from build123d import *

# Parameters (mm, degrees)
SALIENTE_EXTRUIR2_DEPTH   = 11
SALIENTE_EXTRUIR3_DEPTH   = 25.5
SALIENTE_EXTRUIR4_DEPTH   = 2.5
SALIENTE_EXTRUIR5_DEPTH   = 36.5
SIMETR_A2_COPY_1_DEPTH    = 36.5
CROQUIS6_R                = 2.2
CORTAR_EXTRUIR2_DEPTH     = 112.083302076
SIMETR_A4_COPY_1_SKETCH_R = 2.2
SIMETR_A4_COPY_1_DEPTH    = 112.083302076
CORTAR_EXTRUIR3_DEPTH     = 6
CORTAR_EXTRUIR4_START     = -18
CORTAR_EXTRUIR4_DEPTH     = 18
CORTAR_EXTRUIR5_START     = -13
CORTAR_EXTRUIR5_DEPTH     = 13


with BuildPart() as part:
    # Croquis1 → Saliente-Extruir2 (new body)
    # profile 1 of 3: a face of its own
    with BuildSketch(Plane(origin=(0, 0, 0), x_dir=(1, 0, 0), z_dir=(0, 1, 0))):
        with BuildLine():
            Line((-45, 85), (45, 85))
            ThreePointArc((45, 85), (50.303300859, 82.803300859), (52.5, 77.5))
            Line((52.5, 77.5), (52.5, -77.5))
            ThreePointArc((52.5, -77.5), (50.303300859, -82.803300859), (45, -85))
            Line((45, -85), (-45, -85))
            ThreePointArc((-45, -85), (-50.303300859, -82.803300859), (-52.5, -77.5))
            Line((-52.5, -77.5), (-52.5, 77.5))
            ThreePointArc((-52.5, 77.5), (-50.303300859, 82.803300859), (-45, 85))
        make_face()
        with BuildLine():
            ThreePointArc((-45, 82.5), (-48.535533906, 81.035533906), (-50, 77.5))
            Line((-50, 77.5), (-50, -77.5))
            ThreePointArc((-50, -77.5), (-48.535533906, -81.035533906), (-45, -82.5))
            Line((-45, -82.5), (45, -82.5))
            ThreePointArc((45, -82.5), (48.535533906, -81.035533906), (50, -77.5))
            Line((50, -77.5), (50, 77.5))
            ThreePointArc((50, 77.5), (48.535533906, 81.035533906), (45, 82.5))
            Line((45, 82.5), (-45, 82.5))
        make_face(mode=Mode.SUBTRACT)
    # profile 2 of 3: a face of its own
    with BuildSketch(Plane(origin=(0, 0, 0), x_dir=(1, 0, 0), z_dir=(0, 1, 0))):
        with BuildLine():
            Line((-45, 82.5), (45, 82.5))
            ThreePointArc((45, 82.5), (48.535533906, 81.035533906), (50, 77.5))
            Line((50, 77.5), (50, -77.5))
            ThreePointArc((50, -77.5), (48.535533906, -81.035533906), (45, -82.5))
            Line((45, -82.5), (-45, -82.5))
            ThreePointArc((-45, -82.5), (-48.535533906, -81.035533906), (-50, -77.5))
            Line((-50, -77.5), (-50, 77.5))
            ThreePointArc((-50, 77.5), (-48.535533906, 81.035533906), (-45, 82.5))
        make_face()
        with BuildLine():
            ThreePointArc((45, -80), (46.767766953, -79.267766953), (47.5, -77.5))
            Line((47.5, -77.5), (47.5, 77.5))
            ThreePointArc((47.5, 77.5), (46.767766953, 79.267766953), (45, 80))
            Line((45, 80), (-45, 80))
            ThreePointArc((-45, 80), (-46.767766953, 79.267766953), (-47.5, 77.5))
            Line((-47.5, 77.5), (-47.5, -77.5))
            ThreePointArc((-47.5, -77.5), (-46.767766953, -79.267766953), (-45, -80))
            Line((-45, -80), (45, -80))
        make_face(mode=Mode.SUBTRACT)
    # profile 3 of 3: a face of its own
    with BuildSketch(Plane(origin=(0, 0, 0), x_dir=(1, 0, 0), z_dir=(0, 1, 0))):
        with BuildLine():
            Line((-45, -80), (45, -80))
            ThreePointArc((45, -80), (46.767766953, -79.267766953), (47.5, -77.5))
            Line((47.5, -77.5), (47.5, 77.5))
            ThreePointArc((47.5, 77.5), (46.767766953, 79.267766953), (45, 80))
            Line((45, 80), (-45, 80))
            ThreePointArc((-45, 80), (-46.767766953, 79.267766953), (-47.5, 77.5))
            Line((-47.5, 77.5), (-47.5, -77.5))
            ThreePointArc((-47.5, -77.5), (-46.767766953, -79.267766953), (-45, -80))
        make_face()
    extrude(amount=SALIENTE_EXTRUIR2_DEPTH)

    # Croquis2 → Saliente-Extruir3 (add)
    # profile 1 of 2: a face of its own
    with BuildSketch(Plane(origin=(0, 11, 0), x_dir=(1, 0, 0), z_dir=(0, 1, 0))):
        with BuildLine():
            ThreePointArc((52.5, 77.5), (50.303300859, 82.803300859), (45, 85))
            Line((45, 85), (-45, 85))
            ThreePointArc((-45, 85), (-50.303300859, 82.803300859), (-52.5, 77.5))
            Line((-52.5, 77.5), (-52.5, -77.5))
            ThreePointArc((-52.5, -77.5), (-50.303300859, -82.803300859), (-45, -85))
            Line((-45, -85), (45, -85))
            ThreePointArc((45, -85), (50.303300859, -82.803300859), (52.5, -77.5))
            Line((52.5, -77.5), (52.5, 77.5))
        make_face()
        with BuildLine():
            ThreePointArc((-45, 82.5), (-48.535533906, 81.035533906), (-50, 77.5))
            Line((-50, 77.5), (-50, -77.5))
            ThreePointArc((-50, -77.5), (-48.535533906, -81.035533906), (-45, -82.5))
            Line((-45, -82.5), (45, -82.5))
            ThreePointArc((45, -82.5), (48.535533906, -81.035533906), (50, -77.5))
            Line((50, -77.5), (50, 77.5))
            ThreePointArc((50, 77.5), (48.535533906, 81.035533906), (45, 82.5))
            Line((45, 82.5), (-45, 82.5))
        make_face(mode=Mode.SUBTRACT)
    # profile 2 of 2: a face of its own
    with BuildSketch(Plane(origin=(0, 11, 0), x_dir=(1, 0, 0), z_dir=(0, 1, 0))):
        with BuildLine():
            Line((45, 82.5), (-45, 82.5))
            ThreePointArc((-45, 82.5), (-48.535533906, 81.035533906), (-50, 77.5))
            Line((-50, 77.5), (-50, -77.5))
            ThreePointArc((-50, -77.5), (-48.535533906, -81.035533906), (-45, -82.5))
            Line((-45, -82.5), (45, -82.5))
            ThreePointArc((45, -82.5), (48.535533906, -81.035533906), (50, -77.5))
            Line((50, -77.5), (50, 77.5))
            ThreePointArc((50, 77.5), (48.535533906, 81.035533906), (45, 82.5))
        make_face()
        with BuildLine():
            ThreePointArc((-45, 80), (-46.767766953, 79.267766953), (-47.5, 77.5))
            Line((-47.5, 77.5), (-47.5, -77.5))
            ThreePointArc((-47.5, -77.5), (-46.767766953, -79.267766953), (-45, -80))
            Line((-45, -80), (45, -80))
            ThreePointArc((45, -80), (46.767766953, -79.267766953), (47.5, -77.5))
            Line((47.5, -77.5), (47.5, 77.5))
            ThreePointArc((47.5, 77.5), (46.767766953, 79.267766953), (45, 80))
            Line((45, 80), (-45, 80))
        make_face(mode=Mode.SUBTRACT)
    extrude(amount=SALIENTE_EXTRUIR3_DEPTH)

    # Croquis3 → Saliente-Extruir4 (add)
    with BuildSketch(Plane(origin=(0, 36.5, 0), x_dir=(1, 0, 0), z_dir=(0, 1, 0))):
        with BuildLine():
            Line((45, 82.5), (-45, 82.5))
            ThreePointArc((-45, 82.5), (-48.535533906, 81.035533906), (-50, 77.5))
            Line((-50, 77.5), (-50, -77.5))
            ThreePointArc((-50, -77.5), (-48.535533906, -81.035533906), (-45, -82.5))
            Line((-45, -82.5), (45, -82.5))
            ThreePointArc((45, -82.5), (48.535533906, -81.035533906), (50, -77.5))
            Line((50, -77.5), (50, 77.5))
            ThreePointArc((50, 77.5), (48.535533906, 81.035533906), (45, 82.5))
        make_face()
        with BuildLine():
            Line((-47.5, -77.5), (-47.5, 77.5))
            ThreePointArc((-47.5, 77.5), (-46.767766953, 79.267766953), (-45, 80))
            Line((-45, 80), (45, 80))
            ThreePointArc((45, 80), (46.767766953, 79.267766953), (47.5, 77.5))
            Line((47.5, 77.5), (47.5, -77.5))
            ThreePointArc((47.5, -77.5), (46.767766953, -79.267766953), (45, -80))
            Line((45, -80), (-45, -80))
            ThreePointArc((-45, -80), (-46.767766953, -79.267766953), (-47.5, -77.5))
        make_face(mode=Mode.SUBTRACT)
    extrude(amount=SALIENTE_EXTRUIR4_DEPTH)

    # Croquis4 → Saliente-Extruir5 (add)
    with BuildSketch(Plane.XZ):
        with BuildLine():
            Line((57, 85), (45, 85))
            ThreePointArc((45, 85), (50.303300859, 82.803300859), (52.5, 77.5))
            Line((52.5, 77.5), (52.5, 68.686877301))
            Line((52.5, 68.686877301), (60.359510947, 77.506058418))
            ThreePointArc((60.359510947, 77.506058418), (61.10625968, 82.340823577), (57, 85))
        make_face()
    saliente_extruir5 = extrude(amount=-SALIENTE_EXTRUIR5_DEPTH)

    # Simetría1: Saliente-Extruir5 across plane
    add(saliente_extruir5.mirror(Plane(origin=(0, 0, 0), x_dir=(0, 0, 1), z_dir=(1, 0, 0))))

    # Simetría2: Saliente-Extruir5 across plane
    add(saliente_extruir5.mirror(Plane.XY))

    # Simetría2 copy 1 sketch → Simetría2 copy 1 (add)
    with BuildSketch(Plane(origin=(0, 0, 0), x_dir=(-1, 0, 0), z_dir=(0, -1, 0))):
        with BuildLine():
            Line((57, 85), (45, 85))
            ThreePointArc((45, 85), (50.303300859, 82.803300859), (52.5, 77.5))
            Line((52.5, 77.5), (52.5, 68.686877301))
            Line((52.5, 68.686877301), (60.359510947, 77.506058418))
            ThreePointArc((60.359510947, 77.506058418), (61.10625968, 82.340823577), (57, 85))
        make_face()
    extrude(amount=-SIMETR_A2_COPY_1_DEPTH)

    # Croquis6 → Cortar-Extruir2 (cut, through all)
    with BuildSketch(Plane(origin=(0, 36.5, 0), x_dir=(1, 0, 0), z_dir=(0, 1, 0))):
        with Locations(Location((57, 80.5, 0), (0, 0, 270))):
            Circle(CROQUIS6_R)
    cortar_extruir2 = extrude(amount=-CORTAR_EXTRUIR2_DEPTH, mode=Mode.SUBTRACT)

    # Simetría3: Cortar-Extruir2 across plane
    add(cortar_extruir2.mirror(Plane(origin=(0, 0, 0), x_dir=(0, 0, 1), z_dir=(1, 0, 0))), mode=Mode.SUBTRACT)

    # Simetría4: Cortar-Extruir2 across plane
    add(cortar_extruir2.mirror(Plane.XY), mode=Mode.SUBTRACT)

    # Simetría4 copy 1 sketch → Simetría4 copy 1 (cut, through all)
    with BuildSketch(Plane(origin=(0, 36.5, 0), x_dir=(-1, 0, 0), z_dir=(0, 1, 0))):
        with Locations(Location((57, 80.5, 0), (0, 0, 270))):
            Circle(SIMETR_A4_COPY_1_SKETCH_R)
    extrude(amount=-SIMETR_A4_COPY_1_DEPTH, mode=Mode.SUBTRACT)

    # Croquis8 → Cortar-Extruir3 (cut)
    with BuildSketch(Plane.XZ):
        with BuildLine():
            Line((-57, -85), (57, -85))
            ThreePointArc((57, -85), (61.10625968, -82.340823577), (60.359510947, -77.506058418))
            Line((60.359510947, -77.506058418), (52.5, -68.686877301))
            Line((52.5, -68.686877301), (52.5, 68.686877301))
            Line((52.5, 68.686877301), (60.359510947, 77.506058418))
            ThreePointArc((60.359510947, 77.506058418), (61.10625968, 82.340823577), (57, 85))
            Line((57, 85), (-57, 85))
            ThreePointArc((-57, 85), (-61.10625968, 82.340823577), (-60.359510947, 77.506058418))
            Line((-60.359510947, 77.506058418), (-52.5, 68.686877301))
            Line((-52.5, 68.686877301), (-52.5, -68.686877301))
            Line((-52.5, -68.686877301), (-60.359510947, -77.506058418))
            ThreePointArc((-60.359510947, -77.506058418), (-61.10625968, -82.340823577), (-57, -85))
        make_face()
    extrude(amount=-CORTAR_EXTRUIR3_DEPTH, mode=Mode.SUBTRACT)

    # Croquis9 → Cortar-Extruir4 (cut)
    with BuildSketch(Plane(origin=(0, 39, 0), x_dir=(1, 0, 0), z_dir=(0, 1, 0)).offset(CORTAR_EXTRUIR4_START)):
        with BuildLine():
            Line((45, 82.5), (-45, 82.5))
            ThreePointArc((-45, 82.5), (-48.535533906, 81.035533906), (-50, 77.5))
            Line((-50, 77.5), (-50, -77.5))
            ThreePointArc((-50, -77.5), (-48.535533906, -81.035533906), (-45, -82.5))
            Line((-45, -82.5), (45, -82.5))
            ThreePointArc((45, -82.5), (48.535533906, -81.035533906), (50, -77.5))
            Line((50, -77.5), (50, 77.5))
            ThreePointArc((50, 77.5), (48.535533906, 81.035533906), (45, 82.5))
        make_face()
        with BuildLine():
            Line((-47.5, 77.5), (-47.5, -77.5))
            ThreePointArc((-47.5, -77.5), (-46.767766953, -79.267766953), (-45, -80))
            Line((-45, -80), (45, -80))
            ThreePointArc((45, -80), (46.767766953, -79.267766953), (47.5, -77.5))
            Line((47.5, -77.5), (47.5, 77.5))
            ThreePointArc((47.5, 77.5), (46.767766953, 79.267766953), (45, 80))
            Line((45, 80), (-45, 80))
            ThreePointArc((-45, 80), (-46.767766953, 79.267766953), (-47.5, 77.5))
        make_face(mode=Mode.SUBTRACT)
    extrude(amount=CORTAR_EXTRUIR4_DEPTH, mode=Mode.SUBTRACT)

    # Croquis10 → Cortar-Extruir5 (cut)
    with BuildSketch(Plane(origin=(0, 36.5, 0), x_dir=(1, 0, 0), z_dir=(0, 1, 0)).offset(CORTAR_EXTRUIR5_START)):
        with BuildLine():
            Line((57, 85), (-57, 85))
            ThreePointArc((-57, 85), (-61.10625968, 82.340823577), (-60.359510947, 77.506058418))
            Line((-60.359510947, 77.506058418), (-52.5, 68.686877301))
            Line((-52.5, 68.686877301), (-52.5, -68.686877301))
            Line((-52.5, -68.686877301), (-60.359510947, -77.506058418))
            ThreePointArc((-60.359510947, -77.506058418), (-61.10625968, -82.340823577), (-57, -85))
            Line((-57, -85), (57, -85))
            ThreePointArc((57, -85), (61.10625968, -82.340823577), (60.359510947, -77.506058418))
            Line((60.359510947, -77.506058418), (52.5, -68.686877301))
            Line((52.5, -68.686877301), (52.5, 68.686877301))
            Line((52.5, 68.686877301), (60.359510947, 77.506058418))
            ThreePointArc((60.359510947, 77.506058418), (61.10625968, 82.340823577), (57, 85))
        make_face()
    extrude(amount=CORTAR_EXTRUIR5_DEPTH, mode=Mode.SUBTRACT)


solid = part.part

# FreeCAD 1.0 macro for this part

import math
import FreeCAD as App
import Part
import Sketcher

V = App.Vector

doc = App.newDocument("Part")
params = doc.addObject("Spreadsheet::Sheet", "Params")
for row, (alias, value) in enumerate([
    ("sketch1_radius", "7.5 mm"),
    ("sketch1_width", "90 mm"),
    ("sketch1_height", "155 mm"),
    ("pad1_length", "11 mm"),
    ("sketch2_radius", "7.5 mm"),
    ("sketch2_radius2", "2.5 mm"),
    ("sketch2_width", "90 mm"),
    ("sketch2_height", "155 mm"),
    ("pad2_length", "25.5 mm"),
    ("sketch3_radius", "5 mm"),
    ("sketch3_radius2", "2.5 mm"),
    ("sketch3_width", "90 mm"),
    ("sketch3_height", "155 mm"),
    ("pad3_length", "2.5 mm"),
    ("sketch4_radius", "7.5 mm"),
    ("sketch4_radius2", "4.5 mm"),
    ("sketch4_width", "12 mm"),
    ("pad4_length", "36.5 mm"),
    ("sketch5_radius", "7.5 mm"),
    ("sketch5_radius2", "4.5 mm"),
    ("sketch5_width", "12 mm"),
    ("pad5_length", "36.5 mm"),
    ("sketch6_diameter", "4.4 mm"),
    ("sketch7_diameter", "4.4 mm"),
    ("sketch8_radius", "4.5 mm"),
    ("sketch8_width", "114 mm"),
    ("pocket3_length", "6 mm"),
    ("sketch9_radius", "5 mm"),
    ("sketch9_radius2", "2.5 mm"),
    ("sketch9_width", "90 mm"),
    ("sketch9_height", "155 mm"),
    ("pocket4_length", "18 mm"),
    ("sketch10_radius", "4.5 mm"),
    ("sketch10_width", "114 mm"),
    ("pocket5_length", "13 mm"),
], start=1):
    params.set(f"A{row}", alias)
    params.set(f"B{row}", "=" + value)
    params.setAlias(f"B{row}", alias)

body = doc.addObject("PartDesign::Body", "Body")

sketch1 = body.newObject("Sketcher::SketchObject", "Sketch")
sketch1.AttachmentSupport = (doc.getObject("XZ_Plane"), [""])
sketch1.MapMode = "FlatFace"
sketch1.addGeometry(Part.LineSegment(V(45, -85, 0), V(-45, -85, 0)), False)
sketch1.addGeometry(Part.ArcOfCircle(Part.Circle(V(-45, -78, 0), V(0, 0, 1), 8), math.radians(180), math.radians(270)), False)
sketch1.addGeometry(Part.LineSegment(V(-52, -78, 0), V(-52, 78, 0)), False)
sketch1.addGeometry(Part.ArcOfCircle(Part.Circle(V(-45, 78, 0), V(0, 0, 1), 8), math.radians(90), math.radians(180)), False)
sketch1.addGeometry(Part.LineSegment(V(-45, 85, 0), V(45, 85, 0)), False)
sketch1.addGeometry(Part.ArcOfCircle(Part.Circle(V(45, 78, 0), V(0, 0, 1), 8), math.radians(0), math.radians(90)), False)
sketch1.addGeometry(Part.LineSegment(V(52, 78, 0), V(52, -78, 0)), False)
sketch1.addGeometry(Part.ArcOfCircle(Part.Circle(V(45, -78, 0), V(0, 0, 1), 8), math.radians(-90), math.radians(0)), False)
sketch1.addConstraint(Sketcher.Constraint("Tangent", 0, 2, 1, 2))
sketch1.addConstraint(Sketcher.Constraint("Tangent", 1, 1, 2, 1))
sketch1.addConstraint(Sketcher.Constraint("Tangent", 2, 2, 3, 2))
sketch1.addConstraint(Sketcher.Constraint("Tangent", 3, 1, 4, 1))
sketch1.addConstraint(Sketcher.Constraint("Tangent", 4, 2, 5, 2))
sketch1.addConstraint(Sketcher.Constraint("Tangent", 5, 1, 6, 1))
sketch1.addConstraint(Sketcher.Constraint("Tangent", 6, 2, 7, 2))
sketch1.addConstraint(Sketcher.Constraint("Tangent", 7, 1, 0, 1))
sketch1.addConstraint(Sketcher.Constraint("Horizontal", 0))
sketch1.addConstraint(Sketcher.Constraint("Vertical", 2))
sketch1.addConstraint(Sketcher.Constraint("Horizontal", 4))
sketch1.addConstraint(Sketcher.Constraint("Vertical", 6))
sketch1.addConstraint(Sketcher.Constraint("Equal", 1, 3))
sketch1.addConstraint(Sketcher.Constraint("Equal", 3, 5))
sketch1.addConstraint(Sketcher.Constraint("Equal", 5, 7))
sketch1.addConstraint(Sketcher.Constraint("Symmetric", 1, 3, 5, 3, -1, 1))
sketch1.addConstraint(Sketcher.Constraint("Radius", 1, 7.5))
sketch1.addConstraint(Sketcher.Constraint("DistanceX", 0, 2, 0, 1, 90.0))
sketch1.addConstraint(Sketcher.Constraint("DistanceY", 2, 1, 2, 2, 155.0))
sketch1.setExpression("Constraints[16]", "Params.sketch1_radius")
sketch1.setExpression("Constraints[17]", "Params.sketch1_width")
sketch1.setExpression("Constraints[18]", "Params.sketch1_height")
pad1 = body.newObject("PartDesign::Pad", "Pad")
pad1.Profile = sketch1
pad1.setExpression("Length", "Params.pad1_length")
pad1.Reversed = True

sketch2 = body.newObject("Sketcher::SketchObject", "Sketch001")
sketch2.AttachmentSupport = (doc.getObject("XZ_Plane"), [""])
sketch2.MapMode = "FlatFace"
sketch2.AttachmentOffset = App.Placement(V(0, 0, -11), App.Rotation())
sketch2.addGeometry(Part.ArcOfCircle(Part.Circle(V(45, -77.5, 0), V(0, 0, 1), 7.5), math.radians(-90), math.radians(0)), False)
sketch2.addGeometry(Part.LineSegment(V(45, -85, 0), V(-45, -85, 0)), False)
sketch2.addGeometry(Part.ArcOfCircle(Part.Circle(V(-45, -77.5, 0), V(0, 0, 1), 7.5), math.radians(180), math.radians(270)), False)
sketch2.addGeometry(Part.LineSegment(V(-52.5, -77.5, 0), V(-52.5, 77.5, 0)), False)
sketch2.addGeometry(Part.ArcOfCircle(Part.Circle(V(-45, 77.5, 0), V(0, 0, 1), 7.5), math.radians(90), math.radians(180)), False)
sketch2.addGeometry(Part.LineSegment(V(-45, 85, 0), V(45, 85, 0)), False)
sketch2.addGeometry(Part.ArcOfCircle(Part.Circle(V(45, 77.5, 0), V(0, 0, 1), 7.5), math.radians(0), math.radians(90)), False)
sketch2.addGeometry(Part.LineSegment(V(52.5, 77.5, 0), V(52.5, -77.5, 0)), False)
sketch2.addGeometry(Part.ArcOfCircle(Part.Circle(V(-45, -77.5, 0), V(0, 0, 1), 2.5), math.radians(180), math.radians(270)), False)
sketch2.addGeometry(Part.LineSegment(V(-45, -80, 0), V(45, -80, 0)), False)
sketch2.addGeometry(Part.ArcOfCircle(Part.Circle(V(45, -77.5, 0), V(0, 0, 1), 2.5), math.radians(-90), math.radians(0)), False)
sketch2.addGeometry(Part.LineSegment(V(47.5, -77.5, 0), V(47.5, 77.5, 0)), False)
sketch2.addGeometry(Part.ArcOfCircle(Part.Circle(V(45, 77.5, 0), V(0, 0, 1), 2.5), math.radians(0), math.radians(90)), False)
sketch2.addGeometry(Part.LineSegment(V(45, 80, 0), V(-45, 80, 0)), False)
sketch2.addGeometry(Part.ArcOfCircle(Part.Circle(V(-45, 77.5, 0), V(0, 0, 1), 2.5), math.radians(90), math.radians(180)), False)
sketch2.addGeometry(Part.LineSegment(V(-47.5, 77.5, 0), V(-47.5, -77.5, 0)), False)
sketch2.addConstraint(Sketcher.Constraint("Tangent", 0, 1, 1, 1))
sketch2.addConstraint(Sketcher.Constraint("Tangent", 1, 2, 2, 2))
sketch2.addConstraint(Sketcher.Constraint("Tangent", 2, 1, 3, 1))
sketch2.addConstraint(Sketcher.Constraint("Tangent", 3, 2, 4, 2))
sketch2.addConstraint(Sketcher.Constraint("Tangent", 4, 1, 5, 1))
sketch2.addConstraint(Sketcher.Constraint("Tangent", 5, 2, 6, 2))
sketch2.addConstraint(Sketcher.Constraint("Tangent", 6, 1, 7, 1))
sketch2.addConstraint(Sketcher.Constraint("Tangent", 7, 2, 0, 2))
sketch2.addConstraint(Sketcher.Constraint("Tangent", 8, 2, 9, 1))
sketch2.addConstraint(Sketcher.Constraint("Tangent", 9, 2, 10, 1))
sketch2.addConstraint(Sketcher.Constraint("Tangent", 10, 2, 11, 1))
sketch2.addConstraint(Sketcher.Constraint("Tangent", 11, 2, 12, 1))
sketch2.addConstraint(Sketcher.Constraint("Tangent", 12, 2, 13, 1))
sketch2.addConstraint(Sketcher.Constraint("Tangent", 13, 2, 14, 1))
sketch2.addConstraint(Sketcher.Constraint("Tangent", 14, 2, 15, 1))
sketch2.addConstraint(Sketcher.Constraint("Tangent", 15, 2, 8, 1))
sketch2.addConstraint(Sketcher.Constraint("Horizontal", 1))
sketch2.addConstraint(Sketcher.Constraint("Vertical", 3))
sketch2.addConstraint(Sketcher.Constraint("Horizontal", 5))
sketch2.addConstraint(Sketcher.Constraint("Vertical", 7))
sketch2.addConstraint(Sketcher.Constraint("Horizontal", 9))
sketch2.addConstraint(Sketcher.Constraint("Vertical", 11))
sketch2.addConstraint(Sketcher.Constraint("Horizontal", 13))
sketch2.addConstraint(Sketcher.Constraint("Vertical", 15))
sketch2.addConstraint(Sketcher.Constraint("Coincident", 8, 3, 2, 3))
sketch2.addConstraint(Sketcher.Constraint("Coincident", 10, 3, 0, 3))
sketch2.addConstraint(Sketcher.Constraint("Coincident", 12, 3, 6, 3))
sketch2.addConstraint(Sketcher.Constraint("Equal", 0, 2))
sketch2.addConstraint(Sketcher.Constraint("Equal", 2, 4))
sketch2.addConstraint(Sketcher.Constraint("Equal", 4, 6))
sketch2.addConstraint(Sketcher.Constraint("Equal", 12, 14))
sketch2.addConstraint(Sketcher.Constraint("Symmetric", 0, 3, 4, 3, -1, 1))
sketch2.addConstraint(Sketcher.Constraint("Radius", 0, 7.5))
sketch2.addConstraint(Sketcher.Constraint("Radius", 8, 2.5))
sketch2.addConstraint(Sketcher.Constraint("DistanceX", 1, 2, 1, 1, 90.0))
sketch2.addConstraint(Sketcher.Constraint("DistanceY", 3, 1, 3, 2, 155.0))
sketch2.setExpression("Constraints[32]", "Params.sketch2_radius")
sketch2.setExpression("Constraints[33]", "Params.sketch2_radius2")
sketch2.setExpression("Constraints[34]", "Params.sketch2_width")
sketch2.setExpression("Constraints[35]", "Params.sketch2_height")
pad2 = body.newObject("PartDesign::Pad", "Pad001")
pad2.Profile = sketch2
pad2.setExpression("Length", "Params.pad2_length")
pad2.Reversed = True

sketch3 = body.newObject("Sketcher::SketchObject", "Sketch002")
sketch3.AttachmentSupport = (doc.getObject("XZ_Plane"), [""])
sketch3.MapMode = "FlatFace"
sketch3.AttachmentOffset = App.Placement(V(0, 0, -36.5), App.Rotation())
sketch3.addGeometry(Part.LineSegment(V(45, -82.5, 0), V(-45, -82.5, 0)), False)
sketch3.addGeometry(Part.ArcOfCircle(Part.Circle(V(-45, -77.5, 0), V(0, 0, 1), 5), math.radians(180), math.radians(270)), False)
sketch3.addGeometry(Part.LineSegment(V(-50, -77.5, 0), V(-50, 77.5, 0)), False)
sketch3.addGeometry(Part.ArcOfCircle(Part.Circle(V(-45, 77.5, 0), V(0, 0, 1), 5), math.radians(90), math.radians(180)), False)
sketch3.addGeometry(Part.LineSegment(V(-45, 82.5, 0), V(45, 82.5, 0)), False)
sketch3.addGeometry(Part.ArcOfCircle(Part.Circle(V(45, 77.5, 0), V(0, 0, 1), 5), math.radians(0), math.radians(90)), False)
sketch3.addGeometry(Part.LineSegment(V(50, 77.5, 0), V(50, -77.5, 0)), False)
sketch3.addGeometry(Part.ArcOfCircle(Part.Circle(V(45, -77.5, 0), V(0, 0, 1), 5), math.radians(-90), math.radians(0)), False)
sketch3.addGeometry(Part.ArcOfCircle(Part.Circle(V(-45, 77.5, 0), V(0, 0, 1), 2.5), math.radians(90), math.radians(180)), False)
sketch3.addGeometry(Part.LineSegment(V(-47.5, 77.5, 0), V(-47.5, -77.5, 0)), False)
sketch3.addGeometry(Part.ArcOfCircle(Part.Circle(V(-45, -77.5, 0), V(0, 0, 1), 2.5), math.radians(180), math.radians(270)), False)
sketch3.addGeometry(Part.LineSegment(V(-45, -80, 0), V(45, -80, 0)), False)
sketch3.addGeometry(Part.ArcOfCircle(Part.Circle(V(45, -77.5, 0), V(0, 0, 1), 2.5), math.radians(-90), math.radians(0)), False)
sketch3.addGeometry(Part.LineSegment(V(47.5, -77.5, 0), V(47.5, 77.5, 0)), False)
sketch3.addGeometry(Part.ArcOfCircle(Part.Circle(V(45, 77.5, 0), V(0, 0, 1), 2.5), math.radians(0), math.radians(90)), False)
sketch3.addGeometry(Part.LineSegment(V(45, 80, 0), V(-45, 80, 0)), False)
sketch3.addConstraint(Sketcher.Constraint("Tangent", 0, 2, 1, 2))
sketch3.addConstraint(Sketcher.Constraint("Tangent", 1, 1, 2, 1))
sketch3.addConstraint(Sketcher.Constraint("Tangent", 2, 2, 3, 2))
sketch3.addConstraint(Sketcher.Constraint("Tangent", 3, 1, 4, 1))
sketch3.addConstraint(Sketcher.Constraint("Tangent", 4, 2, 5, 2))
sketch3.addConstraint(Sketcher.Constraint("Tangent", 5, 1, 6, 1))
sketch3.addConstraint(Sketcher.Constraint("Tangent", 6, 2, 7, 2))
sketch3.addConstraint(Sketcher.Constraint("Tangent", 7, 1, 0, 1))
sketch3.addConstraint(Sketcher.Constraint("Tangent", 8, 2, 9, 1))
sketch3.addConstraint(Sketcher.Constraint("Tangent", 9, 2, 10, 1))
sketch3.addConstraint(Sketcher.Constraint("Tangent", 10, 2, 11, 1))
sketch3.addConstraint(Sketcher.Constraint("Tangent", 11, 2, 12, 1))
sketch3.addConstraint(Sketcher.Constraint("Tangent", 12, 2, 13, 1))
sketch3.addConstraint(Sketcher.Constraint("Tangent", 13, 2, 14, 1))
sketch3.addConstraint(Sketcher.Constraint("Tangent", 14, 2, 15, 1))
sketch3.addConstraint(Sketcher.Constraint("Tangent", 15, 2, 8, 1))
sketch3.addConstraint(Sketcher.Constraint("Horizontal", 0))
sketch3.addConstraint(Sketcher.Constraint("Vertical", 2))
sketch3.addConstraint(Sketcher.Constraint("Horizontal", 4))
sketch3.addConstraint(Sketcher.Constraint("Vertical", 6))
sketch3.addConstraint(Sketcher.Constraint("Vertical", 9))
sketch3.addConstraint(Sketcher.Constraint("Horizontal", 11))
sketch3.addConstraint(Sketcher.Constraint("Vertical", 13))
sketch3.addConstraint(Sketcher.Constraint("Horizontal", 15))
sketch3.addConstraint(Sketcher.Constraint("Coincident", 8, 3, 3, 3))
sketch3.addConstraint(Sketcher.Constraint("Coincident", 10, 3, 1, 3))
sketch3.addConstraint(Sketcher.Constraint("Coincident", 12, 3, 7, 3))
sketch3.addConstraint(Sketcher.Constraint("Equal", 1, 3))
sketch3.addConstraint(Sketcher.Constraint("Equal", 3, 5))
sketch3.addConstraint(Sketcher.Constraint("Equal", 5, 7))
sketch3.addConstraint(Sketcher.Constraint("Equal", 12, 14))
sketch3.addConstraint(Sketcher.Constraint("Symmetric", 1, 3, 5, 3, -1, 1))
sketch3.addConstraint(Sketcher.Constraint("Radius", 1, 5.0))
sketch3.addConstraint(Sketcher.Constraint("Radius", 8, 2.5))
sketch3.addConstraint(Sketcher.Constraint("DistanceX", 0, 2, 0, 1, 90.0))
sketch3.addConstraint(Sketcher.Constraint("DistanceY", 2, 1, 2, 2, 155.0))
sketch3.setExpression("Constraints[32]", "Params.sketch3_radius")
sketch3.setExpression("Constraints[33]", "Params.sketch3_radius2")
sketch3.setExpression("Constraints[34]", "Params.sketch3_width")
sketch3.setExpression("Constraints[35]", "Params.sketch3_height")
pad3 = body.newObject("PartDesign::Pad", "Pad002")
pad3.Profile = sketch3
pad3.setExpression("Length", "Params.pad3_length")
pad3.Reversed = True

sketch4 = body.newObject("Sketcher::SketchObject", "Sketch003")
sketch4.AttachmentSupport = (doc.getObject("XZ_Plane"), [""])
sketch4.MapMode = "FlatFace"
sketch4.addGeometry(Part.LineSegment(V(57, 85, 0), V(45, 85, 0)), False)
sketch4.addGeometry(Part.ArcOfCircle(Part.Circle(V(45, 77.5, 0), V(0, 0, 1), 7.5), math.radians(0), math.radians(90)), False)
sketch4.addGeometry(Part.LineSegment(V(52.5, 77.5, 0), V(52.5, 68.7, 0)), False)
sketch4.addGeometry(Part.LineSegment(V(52.5, 68.7, 0), V(60.4, 77.5, 0)), False)
sketch4.addGeometry(Part.ArcOfCircle(Part.Circle(V(57, 80.5, 0), V(0, 0, 1), 4.5), math.radians(-42), math.radians(90)), False)
sketch4.addConstraint(Sketcher.Constraint("Tangent", 0, 2, 1, 2))
sketch4.addConstraint(Sketcher.Constraint("Tangent", 1, 1, 2, 1))
sketch4.addConstraint(Sketcher.Constraint("Coincident", 2, 2, 3, 1))
sketch4.addConstraint(Sketcher.Constraint("Tangent", 3, 2, 4, 1))
sketch4.addConstraint(Sketcher.Constraint("Tangent", 4, 2, 0, 1))
sketch4.addConstraint(Sketcher.Constraint("Horizontal", 0))
sketch4.addConstraint(Sketcher.Constraint("Vertical", 2))
sketch4.addConstraint(Sketcher.Constraint("Radius", 1, 7.5))
sketch4.addConstraint(Sketcher.Constraint("Radius", 4, 4.5))
sketch4.addConstraint(Sketcher.Constraint("DistanceX", 0, 2, 0, 1, 12.0))
sketch4.addConstraint(Sketcher.Constraint("DistanceX", -1, 1, 1, 3, 45.0))
sketch4.addConstraint(Sketcher.Constraint("DistanceY", -1, 1, 0, 2, 85.0))
sketch4.addConstraint(Sketcher.Constraint("DistanceY", 2, 2, 2, 1, 8.813123))
sketch4.setExpression("Constraints[7]", "Params.sketch4_radius")
sketch4.setExpression("Constraints[8]", "Params.sketch4_radius2")
sketch4.setExpression("Constraints[9]", "Params.sketch4_width")
pad4 = body.newObject("PartDesign::Pad", "Pad003")
pad4.Profile = sketch4
pad4.setExpression("Length", "Params.pad4_length")
pad4.Reversed = True
doc.recompute()

mirrored = body.newObject("PartDesign::Mirrored", "Mirrored")
mirrored.Originals = [pad4]
mirrored.MirrorPlane = (doc.getObject("YZ_Plane"), [""])
body.Tip = mirrored
doc.recompute()

mirrored2 = body.newObject("PartDesign::Mirrored", "Mirrored001")
mirrored2.Originals = [pad4]
mirrored2.MirrorPlane = (doc.getObject("XY_Plane"), [""])
body.Tip = mirrored2

sketch5 = body.newObject("Sketcher::SketchObject", "Sketch004")
sketch5.AttachmentSupport = (doc.getObject("XZ_Plane"), [""])
sketch5.MapMode = "FlatFace"
sketch5.addGeometry(Part.LineSegment(V(-57, -85, 0), V(-45, -85, 0)), False)
sketch5.addGeometry(Part.ArcOfCircle(Part.Circle(V(-45, -77.5, 0), V(0, 0, 1), 7.5), math.radians(180), math.radians(270)), False)
sketch5.addGeometry(Part.LineSegment(V(-52.5, -77.5, 0), V(-52.5, -68.7, 0)), False)
sketch5.addGeometry(Part.LineSegment(V(-52.5, -68.7, 0), V(-60.4, -77.5, 0)), False)
sketch5.addGeometry(Part.ArcOfCircle(Part.Circle(V(-57, -80.5, 0), V(0, 0, 1), 4.5), math.radians(138), math.radians(270)), False)
sketch5.addConstraint(Sketcher.Constraint("Tangent", 0, 2, 1, 2))
sketch5.addConstraint(Sketcher.Constraint("Tangent", 1, 1, 2, 1))
sketch5.addConstraint(Sketcher.Constraint("Coincident", 2, 2, 3, 1))
sketch5.addConstraint(Sketcher.Constraint("Tangent", 3, 2, 4, 1))
sketch5.addConstraint(Sketcher.Constraint("Tangent", 4, 2, 0, 1))
sketch5.addConstraint(Sketcher.Constraint("Horizontal", 0))
sketch5.addConstraint(Sketcher.Constraint("Vertical", 2))
sketch5.addConstraint(Sketcher.Constraint("Radius", 1, 7.5))
sketch5.addConstraint(Sketcher.Constraint("Radius", 4, 4.5))
sketch5.addConstraint(Sketcher.Constraint("DistanceX", 0, 1, 0, 2, 12.0))
sketch5.addConstraint(Sketcher.Constraint("DistanceX", 1, 3, -1, 1, 45.0))
sketch5.addConstraint(Sketcher.Constraint("DistanceY", 0, 2, -1, 1, 85.0))
sketch5.addConstraint(Sketcher.Constraint("DistanceY", 2, 1, 2, 2, 8.813123))
sketch5.setExpression("Constraints[7]", "Params.sketch5_radius")
sketch5.setExpression("Constraints[8]", "Params.sketch5_radius2")
sketch5.setExpression("Constraints[9]", "Params.sketch5_width")
pad5 = body.newObject("PartDesign::Pad", "Pad004")
pad5.Profile = sketch5
pad5.setExpression("Length", "Params.pad5_length")
pad5.Reversed = True

sketch6 = body.newObject("Sketcher::SketchObject", "Sketch005")
sketch6.AttachmentSupport = (doc.getObject("XZ_Plane"), [""])
sketch6.MapMode = "FlatFace"
sketch6.AttachmentOffset = App.Placement(V(0, 0, -36.5), App.Rotation())
sketch6.addGeometry(Part.Circle(V(57, -80.5, 0), V(0, 0, 1), 2.2), False)
sketch6.addConstraint(Sketcher.Constraint("Diameter", 0, 4.4))
sketch6.addConstraint(Sketcher.Constraint("DistanceX", -1, 1, 0, 3, 57.0))
sketch6.addConstraint(Sketcher.Constraint("DistanceY", 0, 3, -1, 1, 80.5))
sketch6.setExpression("Constraints[0]", "Params.sketch6_diameter")
pocket1 = body.newObject("PartDesign::Pocket", "Pocket")
pocket1.Profile = sketch6
pocket1.Type = "ThroughAll"
pocket1.Reversed = True
doc.recompute()

mirrored3 = body.newObject("PartDesign::Mirrored", "Mirrored002")
mirrored3.Originals = [pocket1]
mirrored3.MirrorPlane = (doc.getObject("YZ_Plane"), [""])
body.Tip = mirrored3
doc.recompute()

mirrored4 = body.newObject("PartDesign::Mirrored", "Mirrored003")
mirrored4.Originals = [pocket1]
mirrored4.MirrorPlane = (doc.getObject("XY_Plane"), [""])
body.Tip = mirrored4

sketch7 = body.newObject("Sketcher::SketchObject", "Sketch006")
sketch7.AttachmentSupport = (doc.getObject("XZ_Plane"), [""])
sketch7.MapMode = "FlatFace"
sketch7.AttachmentOffset = App.Placement(V(0, 0, -36.5), App.Rotation())
sketch7.addGeometry(Part.Circle(V(-57, 80.5, 0), V(0, 0, 1), 2.2), False)
sketch7.addConstraint(Sketcher.Constraint("Diameter", 0, 4.4))
sketch7.addConstraint(Sketcher.Constraint("DistanceX", 0, 3, -1, 1, 57.0))
sketch7.addConstraint(Sketcher.Constraint("DistanceY", -1, 1, 0, 3, 80.5))
sketch7.setExpression("Constraints[0]", "Params.sketch7_diameter")
pocket2 = body.newObject("PartDesign::Pocket", "Pocket001")
pocket2.Profile = sketch7
pocket2.Type = "ThroughAll"
pocket2.Reversed = True

sketch8 = body.newObject("Sketcher::SketchObject", "Sketch007")
sketch8.AttachmentSupport = (doc.getObject("XZ_Plane"), [""])
sketch8.MapMode = "FlatFace"
sketch8.addGeometry(Part.LineSegment(V(-57, -85, 0), V(57, -85, 0)), False)
sketch8.addGeometry(Part.ArcOfCircle(Part.Circle(V(57, -80.5, 0), V(0, 0, 1), 4.5), math.radians(-90), math.radians(42)), False)
sketch8.addGeometry(Part.LineSegment(V(60.4, -77.5, 0), V(52.5, -68.7, 0)), False)
sketch8.addGeometry(Part.LineSegment(V(52.5, -68.7, 0), V(52.5, 68.7, 0)), False)
sketch8.addGeometry(Part.LineSegment(V(52.5, 68.7, 0), V(60.4, 77.5, 0)), False)
sketch8.addGeometry(Part.ArcOfCircle(Part.Circle(V(57, 80.5, 0), V(0, 0, 1), 4.5), math.radians(-42), math.radians(90)), False)
sketch8.addGeometry(Part.LineSegment(V(57, 85, 0), V(-57, 85, 0)), False)
sketch8.addGeometry(Part.ArcOfCircle(Part.Circle(V(-57, 80.5, 0), V(0, 0, 1), 4.5), math.radians(90), math.radians(222)), False)
sketch8.addGeometry(Part.LineSegment(V(-60.4, 77.5, 0), V(-52.5, 68.7, 0)), False)
sketch8.addGeometry(Part.LineSegment(V(-52.5, 68.7, 0), V(-52.5, -68.7, 0)), False)
sketch8.addGeometry(Part.LineSegment(V(-52.5, -68.7, 0), V(-60.4, -77.5, 0)), False)
sketch8.addGeometry(Part.ArcOfCircle(Part.Circle(V(-57, -80.5, 0), V(0, 0, 1), 4.5), math.radians(138), math.radians(270)), False)
sketch8.addConstraint(Sketcher.Constraint("Tangent", 0, 2, 1, 1))
sketch8.addConstraint(Sketcher.Constraint("Tangent", 1, 2, 2, 1))
sketch8.addConstraint(Sketcher.Constraint("Coincident", 2, 2, 3, 1))
sketch8.addConstraint(Sketcher.Constraint("Coincident", 3, 2, 4, 1))
sketch8.addConstraint(Sketcher.Constraint("Tangent", 4, 2, 5, 1))
sketch8.addConstraint(Sketcher.Constraint("Tangent", 5, 2, 6, 1))
sketch8.addConstraint(Sketcher.Constraint("Tangent", 6, 2, 7, 1))
sketch8.addConstraint(Sketcher.Constraint("Tangent", 7, 2, 8, 1))
sketch8.addConstraint(Sketcher.Constraint("Coincident", 8, 2, 9, 1))
sketch8.addConstraint(Sketcher.Constraint("Coincident", 9, 2, 10, 1))
sketch8.addConstraint(Sketcher.Constraint("Tangent", 10, 2, 11, 1))
sketch8.addConstraint(Sketcher.Constraint("Tangent", 11, 2, 0, 1))
sketch8.addConstraint(Sketcher.Constraint("Horizontal", 0))
sketch8.addConstraint(Sketcher.Constraint("Vertical", 3))
sketch8.addConstraint(Sketcher.Constraint("Horizontal", 6))
sketch8.addConstraint(Sketcher.Constraint("Vertical", 9))
sketch8.addConstraint(Sketcher.Constraint("Equal", 1, 5))
sketch8.addConstraint(Sketcher.Constraint("Equal", 5, 7))
sketch8.addConstraint(Sketcher.Constraint("Equal", 7, 11))
sketch8.addConstraint(Sketcher.Constraint("Symmetric", 1, 3, 7, 3, -1, 1))
sketch8.addConstraint(Sketcher.Constraint("Symmetric", 2, 2, 8, 2, -1, 1))
sketch8.addConstraint(Sketcher.Constraint("Symmetric", 4, 2, 10, 2, -1, 1))
sketch8.addConstraint(Sketcher.Constraint("Symmetric", 4, 2, 7, 2, -2))
sketch8.addConstraint(Sketcher.Constraint("Radius", 1, 4.5))
sketch8.addConstraint(Sketcher.Constraint("DistanceX", 0, 1, 0, 2, 114.0))
sketch8.addConstraint(Sketcher.Constraint("DistanceY", 0, 2, -1, 1, 85.0))
sketch8.addConstraint(Sketcher.Constraint("DistanceX", 8, 2, 3, 2, 105.0))
sketch8.addConstraint(Sketcher.Constraint("DistanceY", 3, 1, 3, 2, 137.373755))
sketch8.setExpression("Constraints[23]", "Params.sketch8_radius")
sketch8.setExpression("Constraints[24]", "Params.sketch8_width")
pocket3 = body.newObject("PartDesign::Pocket", "Pocket002")
pocket3.Profile = sketch8
pocket3.setExpression("Length", "Params.pocket3_length")

sketch9 = body.newObject("Sketcher::SketchObject", "Sketch008")
sketch9.AttachmentSupport = (doc.getObject("XZ_Plane"), [""])
sketch9.MapMode = "FlatFace"
sketch9.AttachmentOffset = App.Placement(V(0, 0, -21), App.Rotation())
sketch9.addGeometry(Part.LineSegment(V(45, -82.5, 0), V(-45, -82.5, 0)), False)
sketch9.addGeometry(Part.ArcOfCircle(Part.Circle(V(-45, -77.5, 0), V(0, 0, 1), 5), math.radians(180), math.radians(270)), False)
sketch9.addGeometry(Part.LineSegment(V(-50, -77.5, 0), V(-50, 77.5, 0)), False)
sketch9.addGeometry(Part.ArcOfCircle(Part.Circle(V(-45, 77.5, 0), V(0, 0, 1), 5), math.radians(90), math.radians(180)), False)
sketch9.addGeometry(Part.LineSegment(V(-45, 82.5, 0), V(45, 82.5, 0)), False)
sketch9.addGeometry(Part.ArcOfCircle(Part.Circle(V(45, 77.5, 0), V(0, 0, 1), 5), math.radians(0), math.radians(90)), False)
sketch9.addGeometry(Part.LineSegment(V(50, 77.5, 0), V(50, -77.5, 0)), False)
sketch9.addGeometry(Part.ArcOfCircle(Part.Circle(V(45, -77.5, 0), V(0, 0, 1), 5), math.radians(-90), math.radians(0)), False)
sketch9.addGeometry(Part.LineSegment(V(-47.5, 77.5, 0), V(-47.5, -77.5, 0)), False)
sketch9.addGeometry(Part.ArcOfCircle(Part.Circle(V(-45, -77.5, 0), V(0, 0, 1), 2.5), math.radians(180), math.radians(270)), False)
sketch9.addGeometry(Part.LineSegment(V(-45, -80, 0), V(45, -80, 0)), False)
sketch9.addGeometry(Part.ArcOfCircle(Part.Circle(V(45, -77.5, 0), V(0, 0, 1), 2.5), math.radians(-90), math.radians(0)), False)
sketch9.addGeometry(Part.LineSegment(V(47.5, -77.5, 0), V(47.5, 77.5, 0)), False)
sketch9.addGeometry(Part.ArcOfCircle(Part.Circle(V(45, 77.5, 0), V(0, 0, 1), 2.5), math.radians(0), math.radians(90)), False)
sketch9.addGeometry(Part.LineSegment(V(45, 80, 0), V(-45, 80, 0)), False)
sketch9.addGeometry(Part.ArcOfCircle(Part.Circle(V(-45, 77.5, 0), V(0, 0, 1), 2.5), math.radians(90), math.radians(180)), False)
sketch9.addConstraint(Sketcher.Constraint("Tangent", 0, 2, 1, 2))
sketch9.addConstraint(Sketcher.Constraint("Tangent", 1, 1, 2, 1))
sketch9.addConstraint(Sketcher.Constraint("Tangent", 2, 2, 3, 2))
sketch9.addConstraint(Sketcher.Constraint("Tangent", 3, 1, 4, 1))
sketch9.addConstraint(Sketcher.Constraint("Tangent", 4, 2, 5, 2))
sketch9.addConstraint(Sketcher.Constraint("Tangent", 5, 1, 6, 1))
sketch9.addConstraint(Sketcher.Constraint("Tangent", 6, 2, 7, 2))
sketch9.addConstraint(Sketcher.Constraint("Tangent", 7, 1, 0, 1))
sketch9.addConstraint(Sketcher.Constraint("Tangent", 8, 2, 9, 1))
sketch9.addConstraint(Sketcher.Constraint("Tangent", 9, 2, 10, 1))
sketch9.addConstraint(Sketcher.Constraint("Tangent", 10, 2, 11, 1))
sketch9.addConstraint(Sketcher.Constraint("Tangent", 11, 2, 12, 1))
sketch9.addConstraint(Sketcher.Constraint("Tangent", 12, 2, 13, 1))
sketch9.addConstraint(Sketcher.Constraint("Tangent", 13, 2, 14, 1))
sketch9.addConstraint(Sketcher.Constraint("Tangent", 14, 2, 15, 1))
sketch9.addConstraint(Sketcher.Constraint("Tangent", 15, 2, 8, 1))
sketch9.addConstraint(Sketcher.Constraint("Horizontal", 0))
sketch9.addConstraint(Sketcher.Constraint("Vertical", 2))
sketch9.addConstraint(Sketcher.Constraint("Horizontal", 4))
sketch9.addConstraint(Sketcher.Constraint("Vertical", 6))
sketch9.addConstraint(Sketcher.Constraint("Vertical", 8))
sketch9.addConstraint(Sketcher.Constraint("Horizontal", 10))
sketch9.addConstraint(Sketcher.Constraint("Vertical", 12))
sketch9.addConstraint(Sketcher.Constraint("Horizontal", 14))
sketch9.addConstraint(Sketcher.Constraint("Coincident", 9, 3, 1, 3))
sketch9.addConstraint(Sketcher.Constraint("Coincident", 11, 3, 7, 3))
sketch9.addConstraint(Sketcher.Constraint("Coincident", 13, 3, 5, 3))
sketch9.addConstraint(Sketcher.Constraint("Equal", 1, 3))
sketch9.addConstraint(Sketcher.Constraint("Equal", 3, 5))
sketch9.addConstraint(Sketcher.Constraint("Equal", 5, 7))
sketch9.addConstraint(Sketcher.Constraint("Equal", 13, 15))
sketch9.addConstraint(Sketcher.Constraint("Symmetric", 1, 3, 5, 3, -1, 1))
sketch9.addConstraint(Sketcher.Constraint("Radius", 1, 5.0))
sketch9.addConstraint(Sketcher.Constraint("Radius", 9, 2.5))
sketch9.addConstraint(Sketcher.Constraint("DistanceX", 0, 2, 0, 1, 90.0))
sketch9.addConstraint(Sketcher.Constraint("DistanceY", 2, 1, 2, 2, 155.0))
sketch9.setExpression("Constraints[32]", "Params.sketch9_radius")
sketch9.setExpression("Constraints[33]", "Params.sketch9_radius2")
sketch9.setExpression("Constraints[34]", "Params.sketch9_width")
sketch9.setExpression("Constraints[35]", "Params.sketch9_height")
pocket4 = body.newObject("PartDesign::Pocket", "Pocket003")
pocket4.Profile = sketch9
pocket4.setExpression("Length", "Params.pocket4_length")

sketch10 = body.newObject("Sketcher::SketchObject", "Sketch009")
sketch10.AttachmentSupport = (doc.getObject("XZ_Plane"), [""])
sketch10.MapMode = "FlatFace"
sketch10.AttachmentOffset = App.Placement(V(0, 0, -23.5), App.Rotation())
sketch10.addGeometry(Part.LineSegment(V(57, -85, 0), V(-57, -85, 0)), False)
sketch10.addGeometry(Part.ArcOfCircle(Part.Circle(V(-57, -80.5, 0), V(0, 0, 1), 4.5), math.radians(138), math.radians(270)), False)
sketch10.addGeometry(Part.LineSegment(V(-60.4, -77.5, 0), V(-52.5, -68.7, 0)), False)
sketch10.addGeometry(Part.LineSegment(V(-52.5, -68.7, 0), V(-52.5, 68.7, 0)), False)
sketch10.addGeometry(Part.LineSegment(V(-52.5, 68.7, 0), V(-60.4, 77.5, 0)), False)
sketch10.addGeometry(Part.ArcOfCircle(Part.Circle(V(-57, 80.5, 0), V(0, 0, 1), 4.5), math.radians(90), math.radians(222)), False)
sketch10.addGeometry(Part.LineSegment(V(-57, 85, 0), V(57, 85, 0)), False)
sketch10.addGeometry(Part.ArcOfCircle(Part.Circle(V(57, 80.5, 0), V(0, 0, 1), 4.5), math.radians(-42), math.radians(90)), False)
sketch10.addGeometry(Part.LineSegment(V(60.4, 77.5, 0), V(52.5, 68.7, 0)), False)
sketch10.addGeometry(Part.LineSegment(V(52.5, 68.7, 0), V(52.5, -68.7, 0)), False)
sketch10.addGeometry(Part.LineSegment(V(52.5, -68.7, 0), V(60.4, -77.5, 0)), False)
sketch10.addGeometry(Part.ArcOfCircle(Part.Circle(V(57, -80.5, 0), V(0, 0, 1), 4.5), math.radians(-90), math.radians(42)), False)
sketch10.addConstraint(Sketcher.Constraint("Tangent", 0, 2, 1, 2))
sketch10.addConstraint(Sketcher.Constraint("Tangent", 1, 1, 2, 1))
sketch10.addConstraint(Sketcher.Constraint("Coincident", 2, 2, 3, 1))
sketch10.addConstraint(Sketcher.Constraint("Coincident", 3, 2, 4, 1))
sketch10.addConstraint(Sketcher.Constraint("Tangent", 4, 2, 5, 2))
sketch10.addConstraint(Sketcher.Constraint("Tangent", 5, 1, 6, 1))
sketch10.addConstraint(Sketcher.Constraint("Tangent", 6, 2, 7, 2))
sketch10.addConstraint(Sketcher.Constraint("Tangent", 7, 1, 8, 1))
sketch10.addConstraint(Sketcher.Constraint("Coincident", 8, 2, 9, 1))
sketch10.addConstraint(Sketcher.Constraint("Coincident", 9, 2, 10, 1))
sketch10.addConstraint(Sketcher.Constraint("Tangent", 10, 2, 11, 2))
sketch10.addConstraint(Sketcher.Constraint("Tangent", 11, 1, 0, 1))
sketch10.addConstraint(Sketcher.Constraint("Horizontal", 0))
sketch10.addConstraint(Sketcher.Constraint("Vertical", 3))
sketch10.addConstraint(Sketcher.Constraint("Horizontal", 6))
sketch10.addConstraint(Sketcher.Constraint("Vertical", 9))
sketch10.addConstraint(Sketcher.Constraint("Equal", 1, 5))
sketch10.addConstraint(Sketcher.Constraint("Equal", 5, 7))
sketch10.addConstraint(Sketcher.Constraint("Equal", 7, 11))
sketch10.addConstraint(Sketcher.Constraint("Symmetric", 1, 3, 7, 3, -1, 1))
sketch10.addConstraint(Sketcher.Constraint("Symmetric", 2, 2, 8, 2, -1, 1))
sketch10.addConstraint(Sketcher.Constraint("Symmetric", 4, 2, 10, 2, -1, 1))
sketch10.addConstraint(Sketcher.Constraint("Symmetric", 4, 2, 7, 1, -2))
sketch10.addConstraint(Sketcher.Constraint("Radius", 1, 4.5))
sketch10.addConstraint(Sketcher.Constraint("DistanceX", 0, 2, 0, 1, 114.0))
sketch10.addConstraint(Sketcher.Constraint("DistanceY", 0, 2, -1, 1, 85.0))
sketch10.addConstraint(Sketcher.Constraint("DistanceX", 3, 2, 8, 2, 105.0))
sketch10.addConstraint(Sketcher.Constraint("DistanceY", 3, 1, 3, 2, 137.373755))
sketch10.setExpression("Constraints[23]", "Params.sketch10_radius")
sketch10.setExpression("Constraints[24]", "Params.sketch10_width")
pocket5 = body.newObject("PartDesign::Pocket", "Pocket004")
pocket5.Profile = sketch10
pocket5.setExpression("Length", "Params.pocket5_length")

doc.recompute()
